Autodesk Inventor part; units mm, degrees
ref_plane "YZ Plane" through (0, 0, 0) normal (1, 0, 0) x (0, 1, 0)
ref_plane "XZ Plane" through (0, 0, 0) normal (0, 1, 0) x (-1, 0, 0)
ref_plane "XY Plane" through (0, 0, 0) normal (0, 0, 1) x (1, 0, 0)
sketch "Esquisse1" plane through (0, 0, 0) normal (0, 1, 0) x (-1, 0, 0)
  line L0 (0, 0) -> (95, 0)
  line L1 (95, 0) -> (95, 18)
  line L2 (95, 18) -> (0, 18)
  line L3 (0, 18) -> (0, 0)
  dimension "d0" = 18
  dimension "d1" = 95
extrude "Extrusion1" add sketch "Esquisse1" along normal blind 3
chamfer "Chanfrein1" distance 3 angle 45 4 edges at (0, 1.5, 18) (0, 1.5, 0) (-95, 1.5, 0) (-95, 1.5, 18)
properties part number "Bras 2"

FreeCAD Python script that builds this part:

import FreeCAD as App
import Part
import Sketcher
from FreeCAD import Vector


def edges_at(feature, points):
    """Names of the edges that pass closest to the given points."""
    edges = feature.Shape.Edges
    near = lambda p: min(range(len(edges)), key=lambda i: edges[i].distToShape(Part.Vertex(*p))[0])
    return sorted({f"Edge{near(p) + 1}" for p in points})


def add_polygon(sketch, points):
    """Adds a closed chain of lines whose ends are joined by coincident constraints."""
    first, n = sketch.GeometryCount, len(points)
    for a, b in zip(points, points[1:] + points[:1]):
        sketch.addGeometry(Part.LineSegment(App.Vector(*a, 0), App.Vector(*b, 0)), False)
    for i in range(n):
        sketch.addConstraint(Sketcher.Constraint("Coincident", first + i, 2, first + (i + 1) % n, 1))

doc = App.newDocument("Part")
body = doc.addObject("PartDesign::Body", "Body")

sketch1 = body.newObject("Sketcher::SketchObject", "Sketch")
sketch1.AttachmentSupport = (doc.getObject("XZ_Plane"), [""])
sketch1.MapMode = "FlatFace"
add_polygon(sketch1, [(0, 18), (0, 0), (-95, 0), (-95, 18)])
sketch1.addConstraint(Sketcher.Constraint("Vertical", 0))
sketch1.addConstraint(Sketcher.Constraint("Horizontal", 1))
sketch1.addConstraint(Sketcher.Constraint("Vertical", 2))
sketch1.addConstraint(Sketcher.Constraint("Horizontal", 3))
sketch1.addConstraint(Sketcher.Constraint("Coincident", 0, 2, -1, 1))
sketch1.addConstraint(Sketcher.Constraint("DistanceX", 1, 2, 1, 1, 95.0))
sketch1.addConstraint(Sketcher.Constraint("DistanceY", 0, 2, 0, 1, 18.0))
pad1 = body.newObject("PartDesign::Pad", "Pad")
pad1.Profile = sketch1
pad1.Length = 3
pad1.Reversed = True
doc.recompute()

chamfer = body.newObject("PartDesign::Chamfer", "Chamfer")
chamfer.Base = (pad1, edges_at(pad1, [
    (0, 1.5, 18),
    (0, 1.5, 0),
    (-95, 1.5, 0),
    (-95, 1.5, 18),
]))
chamfer.Size = 3

doc.recompute()
